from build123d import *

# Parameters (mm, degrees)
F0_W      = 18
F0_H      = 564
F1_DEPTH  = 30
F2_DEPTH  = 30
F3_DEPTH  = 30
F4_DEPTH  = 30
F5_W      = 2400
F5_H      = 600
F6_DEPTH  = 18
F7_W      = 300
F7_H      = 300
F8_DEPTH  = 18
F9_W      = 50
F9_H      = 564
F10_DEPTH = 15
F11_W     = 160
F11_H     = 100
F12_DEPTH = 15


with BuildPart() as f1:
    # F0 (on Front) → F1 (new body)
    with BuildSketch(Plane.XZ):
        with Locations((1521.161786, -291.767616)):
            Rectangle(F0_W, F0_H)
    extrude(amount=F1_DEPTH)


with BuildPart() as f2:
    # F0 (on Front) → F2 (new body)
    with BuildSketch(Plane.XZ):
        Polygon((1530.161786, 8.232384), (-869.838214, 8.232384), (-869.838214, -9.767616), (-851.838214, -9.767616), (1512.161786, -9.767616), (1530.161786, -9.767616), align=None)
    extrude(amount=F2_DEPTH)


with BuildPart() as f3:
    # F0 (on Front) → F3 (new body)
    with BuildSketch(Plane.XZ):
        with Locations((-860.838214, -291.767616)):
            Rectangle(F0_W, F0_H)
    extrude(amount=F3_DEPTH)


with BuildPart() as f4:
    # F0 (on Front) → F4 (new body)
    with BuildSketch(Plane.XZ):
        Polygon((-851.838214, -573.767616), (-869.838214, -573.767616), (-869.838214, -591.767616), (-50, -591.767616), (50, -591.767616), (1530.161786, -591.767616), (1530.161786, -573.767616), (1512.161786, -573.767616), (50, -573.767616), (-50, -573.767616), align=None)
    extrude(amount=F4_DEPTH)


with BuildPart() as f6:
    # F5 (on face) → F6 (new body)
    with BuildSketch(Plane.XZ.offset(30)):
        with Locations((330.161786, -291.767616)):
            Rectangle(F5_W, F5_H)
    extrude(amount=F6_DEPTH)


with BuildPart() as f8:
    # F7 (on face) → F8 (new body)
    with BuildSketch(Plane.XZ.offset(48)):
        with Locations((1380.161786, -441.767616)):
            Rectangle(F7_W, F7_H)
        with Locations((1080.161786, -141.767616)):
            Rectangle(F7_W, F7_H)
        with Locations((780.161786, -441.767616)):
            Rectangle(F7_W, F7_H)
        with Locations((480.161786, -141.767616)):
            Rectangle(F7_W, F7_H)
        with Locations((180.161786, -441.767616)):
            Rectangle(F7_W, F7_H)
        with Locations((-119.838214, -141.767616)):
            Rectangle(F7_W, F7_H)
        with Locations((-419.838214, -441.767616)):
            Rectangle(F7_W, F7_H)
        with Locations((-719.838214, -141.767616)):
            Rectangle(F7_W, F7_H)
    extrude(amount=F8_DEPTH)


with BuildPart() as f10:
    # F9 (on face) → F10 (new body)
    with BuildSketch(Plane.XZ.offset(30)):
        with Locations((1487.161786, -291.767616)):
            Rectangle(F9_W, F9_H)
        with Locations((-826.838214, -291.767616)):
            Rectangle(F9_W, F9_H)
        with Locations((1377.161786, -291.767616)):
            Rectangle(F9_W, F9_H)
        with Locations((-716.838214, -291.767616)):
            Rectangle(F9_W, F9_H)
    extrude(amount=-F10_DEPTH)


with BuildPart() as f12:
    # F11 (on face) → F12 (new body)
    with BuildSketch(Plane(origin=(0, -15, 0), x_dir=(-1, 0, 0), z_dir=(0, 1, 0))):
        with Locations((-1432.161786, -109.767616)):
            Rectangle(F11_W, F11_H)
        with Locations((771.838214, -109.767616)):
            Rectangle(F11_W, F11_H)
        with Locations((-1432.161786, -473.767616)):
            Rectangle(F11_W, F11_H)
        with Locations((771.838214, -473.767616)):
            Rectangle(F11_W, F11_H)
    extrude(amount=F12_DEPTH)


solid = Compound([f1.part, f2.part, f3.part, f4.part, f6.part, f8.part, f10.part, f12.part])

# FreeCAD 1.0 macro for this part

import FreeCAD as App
import Part
import Sketcher
from FreeCAD import Vector

doc = App.newDocument("Part")
body = doc.addObject("PartDesign::Body", "Body")

sketch1 = doc.addObject("Sketcher::SketchObject", "Sketch")
body.addObject(sketch1)
sketch1.AttachmentSupport = (doc.XZ_Plane, [""])
sketch1.MapMode = "FlatFace"
sketch1.addGeometry(Part.LineSegment(Vector(1512, -10, 0), Vector(1512, -574, 0)), False)
sketch1.addGeometry(Part.LineSegment(Vector(1512, -574, 0), Vector(1530, -574, 0)), False)
sketch1.addGeometry(Part.LineSegment(Vector(1530, -574, 0), Vector(1530, -10, 0)), False)
sketch1.addGeometry(Part.LineSegment(Vector(1530, -10, 0), Vector(1512, -10, 0)), False)
sketch1.addConstraint(Sketcher.Constraint("Coincident", 0, 2, 1, 1))
sketch1.addConstraint(Sketcher.Constraint("Coincident", 1, 2, 2, 1))
sketch1.addConstraint(Sketcher.Constraint("Coincident", 2, 2, 3, 1))
sketch1.addConstraint(Sketcher.Constraint("Coincident", 3, 2, 0, 1))
sketch1.addConstraint(Sketcher.Constraint("Vertical", 0))
sketch1.addConstraint(Sketcher.Constraint("Horizontal", 1))
sketch1.addConstraint(Sketcher.Constraint("Vertical", 2))
sketch1.addConstraint(Sketcher.Constraint("Horizontal", 3))
sketch1.addConstraint(Sketcher.Constraint("DistanceX", 1, 1, 1, 2, 18.0))
sketch1.addConstraint(Sketcher.Constraint("DistanceY", 0, 2, 0, 1, 564.0))
sketch1.addConstraint(Sketcher.Constraint("DistanceX", -1, 1, 0, 2, 1512.161786))
sketch1.addConstraint(Sketcher.Constraint("DistanceY", 0, 2, -1, 1, 573.767616))
pad1 = doc.addObject("PartDesign::Pad", "Pad")
body.addObject(pad1)
pad1.Profile = sketch1
pad1.Length = 30
body2 = doc.addObject("PartDesign::Body", "Body001")

sketch2 = doc.addObject("Sketcher::SketchObject", "Sketch001")
body2.addObject(sketch2)
sketch2.AttachmentSupport = (doc.getObject("XZ_Plane001"), [""])
sketch2.MapMode = "FlatFace"
sketch2.addGeometry(Part.LineSegment(Vector(1530, 8, 0), Vector(-870, 8, 0)), False)
sketch2.addGeometry(Part.LineSegment(Vector(-870, 8, 0), Vector(-870, -10, 0)), False)
sketch2.addGeometry(Part.LineSegment(Vector(-870, -10, 0), Vector(1530, -10, 0)), False)
sketch2.addGeometry(Part.LineSegment(Vector(1530, -10, 0), Vector(1530, 8, 0)), False)
sketch2.addConstraint(Sketcher.Constraint("Coincident", 0, 2, 1, 1))
sketch2.addConstraint(Sketcher.Constraint("Coincident", 1, 2, 2, 1))
sketch2.addConstraint(Sketcher.Constraint("Coincident", 2, 2, 3, 1))
sketch2.addConstraint(Sketcher.Constraint("Coincident", 3, 2, 0, 1))
sketch2.addConstraint(Sketcher.Constraint("Horizontal", 0))
sketch2.addConstraint(Sketcher.Constraint("Vertical", 1))
sketch2.addConstraint(Sketcher.Constraint("Horizontal", 2))
sketch2.addConstraint(Sketcher.Constraint("Vertical", 3))
sketch2.addConstraint(Sketcher.Constraint("DistanceX", 0, 2, 0, 1, 2400.0))
sketch2.addConstraint(Sketcher.Constraint("DistanceY", 1, 2, 1, 1, 18.0))
sketch2.addConstraint(Sketcher.Constraint("DistanceX", 0, 2, -1, 1, 869.838214))
sketch2.addConstraint(Sketcher.Constraint("DistanceY", -1, 1, 0, 2, 8.232384))
pad2 = doc.addObject("PartDesign::Pad", "Pad001")
body2.addObject(pad2)
pad2.Profile = sketch2
pad2.Length = 30
body3 = doc.addObject("PartDesign::Body", "Body002")

sketch3 = doc.addObject("Sketcher::SketchObject", "Sketch002")
body3.addObject(sketch3)
sketch3.AttachmentSupport = (doc.getObject("XZ_Plane002"), [""])
sketch3.MapMode = "FlatFace"
sketch3.addGeometry(Part.LineSegment(Vector(-870, -10, 0), Vector(-870, -574, 0)), False)
sketch3.addGeometry(Part.LineSegment(Vector(-870, -574, 0), Vector(-852, -574, 0)), False)
sketch3.addGeometry(Part.LineSegment(Vector(-852, -574, 0), Vector(-852, -10, 0)), False)
sketch3.addGeometry(Part.LineSegment(Vector(-852, -10, 0), Vector(-870, -10, 0)), False)
sketch3.addConstraint(Sketcher.Constraint("Coincident", 0, 2, 1, 1))
sketch3.addConstraint(Sketcher.Constraint("Coincident", 1, 2, 2, 1))
sketch3.addConstraint(Sketcher.Constraint("Coincident", 2, 2, 3, 1))
sketch3.addConstraint(Sketcher.Constraint("Coincident", 3, 2, 0, 1))
sketch3.addConstraint(Sketcher.Constraint("Vertical", 0))
sketch3.addConstraint(Sketcher.Constraint("Horizontal", 1))
sketch3.addConstraint(Sketcher.Constraint("Vertical", 2))
sketch3.addConstraint(Sketcher.Constraint("Horizontal", 3))
sketch3.addConstraint(Sketcher.Constraint("DistanceX", 1, 1, 1, 2, 18.0))
sketch3.addConstraint(Sketcher.Constraint("DistanceY", 0, 2, 0, 1, 564.0))
sketch3.addConstraint(Sketcher.Constraint("DistanceX", 0, 2, -1, 1, 869.838214))
sketch3.addConstraint(Sketcher.Constraint("DistanceY", 0, 2, -1, 1, 573.767616))
pad3 = doc.addObject("PartDesign::Pad", "Pad002")
body3.addObject(pad3)
pad3.Profile = sketch3
pad3.Length = 30
body4 = doc.addObject("PartDesign::Body", "Body003")

sketch4 = doc.addObject("Sketcher::SketchObject", "Sketch003")
body4.addObject(sketch4)
sketch4.AttachmentSupport = (doc.getObject("XZ_Plane003"), [""])
sketch4.MapMode = "FlatFace"
sketch4.addGeometry(Part.LineSegment(Vector(-870, -574, 0), Vector(-870, -592, 0)), False)
sketch4.addGeometry(Part.LineSegment(Vector(-870, -592, 0), Vector(1530, -592, 0)), False)
sketch4.addGeometry(Part.LineSegment(Vector(1530, -592, 0), Vector(1530, -574, 0)), False)
sketch4.addGeometry(Part.LineSegment(Vector(1530, -574, 0), Vector(-870, -574, 0)), False)
sketch4.addConstraint(Sketcher.Constraint("Coincident", 0, 2, 1, 1))
sketch4.addConstraint(Sketcher.Constraint("Coincident", 1, 2, 2, 1))
sketch4.addConstraint(Sketcher.Constraint("Coincident", 2, 2, 3, 1))
sketch4.addConstraint(Sketcher.Constraint("Coincident", 3, 2, 0, 1))
sketch4.addConstraint(Sketcher.Constraint("Vertical", 0))
sketch4.addConstraint(Sketcher.Constraint("Horizontal", 1))
sketch4.addConstraint(Sketcher.Constraint("Vertical", 2))
sketch4.addConstraint(Sketcher.Constraint("Horizontal", 3))
sketch4.addConstraint(Sketcher.Constraint("DistanceX", 1, 1, 1, 2, 2400.0))
sketch4.addConstraint(Sketcher.Constraint("DistanceY", 0, 2, 0, 1, 18.0))
sketch4.addConstraint(Sketcher.Constraint("DistanceX", 0, 2, -1, 1, 869.838214))
sketch4.addConstraint(Sketcher.Constraint("DistanceY", 0, 2, -1, 1, 591.767616))
pad4 = doc.addObject("PartDesign::Pad", "Pad003")
body4.addObject(pad4)
pad4.Profile = sketch4
pad4.Length = 30
body5 = doc.addObject("PartDesign::Body", "Body004")

sketch5 = doc.addObject("Sketcher::SketchObject", "Sketch004")
body5.addObject(sketch5)
sketch5.AttachmentSupport = (doc.getObject("XZ_Plane004"), [""])
sketch5.MapMode = "FlatFace"
sketch5.AttachmentOffset = App.Placement(Vector(0, 0, 30), App.Rotation())
sketch5.addGeometry(Part.LineSegment(Vector(-870, 8, 0), Vector(-870, -592, 0)), False)
sketch5.addGeometry(Part.LineSegment(Vector(-870, -592, 0), Vector(1530, -592, 0)), False)
sketch5.addGeometry(Part.LineSegment(Vector(1530, -592, 0), Vector(1530, 8, 0)), False)
sketch5.addGeometry(Part.LineSegment(Vector(1530, 8, 0), Vector(-870, 8, 0)), False)
sketch5.addConstraint(Sketcher.Constraint("Coincident", 0, 2, 1, 1))
sketch5.addConstraint(Sketcher.Constraint("Coincident", 1, 2, 2, 1))
sketch5.addConstraint(Sketcher.Constraint("Coincident", 2, 2, 3, 1))
sketch5.addConstraint(Sketcher.Constraint("Coincident", 3, 2, 0, 1))
sketch5.addConstraint(Sketcher.Constraint("Vertical", 0))
sketch5.addConstraint(Sketcher.Constraint("Horizontal", 1))
sketch5.addConstraint(Sketcher.Constraint("Vertical", 2))
sketch5.addConstraint(Sketcher.Constraint("Horizontal", 3))
sketch5.addConstraint(Sketcher.Constraint("DistanceX", 1, 1, 1, 2, 2400.0))
sketch5.addConstraint(Sketcher.Constraint("DistanceY", 0, 2, 0, 1, 600.0))
sketch5.addConstraint(Sketcher.Constraint("DistanceX", 0, 2, -1, 1, 869.838214))
sketch5.addConstraint(Sketcher.Constraint("DistanceY", 0, 2, -1, 1, 591.767616))
pad5 = doc.addObject("PartDesign::Pad", "Pad004")
body5.addObject(pad5)
pad5.Profile = sketch5
pad5.Length = 18
body6 = doc.addObject("PartDesign::Body", "Body005")
body6.AllowCompound = True

sketch6 = doc.addObject("Sketcher::SketchObject", "Sketch005")
body6.addObject(sketch6)
sketch6.AttachmentSupport = (doc.getObject("XZ_Plane005"), [""])
sketch6.MapMode = "FlatFace"
sketch6.AttachmentOffset = App.Placement(Vector(0, 0, 48), App.Rotation())
sketch6.addGeometry(Part.LineSegment(Vector(1230, -292, 0), Vector(1230, -592, 0)), False)
sketch6.addGeometry(Part.LineSegment(Vector(1230, -592, 0), Vector(1530, -592, 0)), False)
sketch6.addGeometry(Part.LineSegment(Vector(1530, -592, 0), Vector(1530, -292, 0)), False)
sketch6.addGeometry(Part.LineSegment(Vector(1530, -292, 0), Vector(1230, -292, 0)), False)
sketch6.addGeometry(Part.LineSegment(Vector(930, 8, 0), Vector(930, -292, 0)), False)
sketch6.addGeometry(Part.LineSegment(Vector(930, -292, 0), Vector(1230, -292, 0)), False)
sketch6.addGeometry(Part.LineSegment(Vector(1230, -292, 0), Vector(1230, 8, 0)), False)
sketch6.addGeometry(Part.LineSegment(Vector(1230, 8, 0), Vector(930, 8, 0)), False)
sketch6.addGeometry(Part.LineSegment(Vector(630, -292, 0), Vector(630, -592, 0)), False)
sketch6.addGeometry(Part.LineSegment(Vector(630, -592, 0), Vector(930, -592, 0)), False)
sketch6.addGeometry(Part.LineSegment(Vector(930, -592, 0), Vector(930, -292, 0)), False)
sketch6.addGeometry(Part.LineSegment(Vector(930, -292, 0), Vector(630, -292, 0)), False)
sketch6.addGeometry(Part.LineSegment(Vector(330, 8, 0), Vector(330, -292, 0)), False)
sketch6.addGeometry(Part.LineSegment(Vector(330, -292, 0), Vector(630, -292, 0)), False)
sketch6.addGeometry(Part.LineSegment(Vector(630, -292, 0), Vector(630, 8, 0)), False)
sketch6.addGeometry(Part.LineSegment(Vector(630, 8, 0), Vector(330, 8, 0)), False)
sketch6.addGeometry(Part.LineSegment(Vector(30, -292, 0), Vector(30, -592, 0)), False)
sketch6.addGeometry(Part.LineSegment(Vector(30, -592, 0), Vector(330, -592, 0)), False)
sketch6.addGeometry(Part.LineSegment(Vector(330, -592, 0), Vector(330, -292, 0)), False)
sketch6.addGeometry(Part.LineSegment(Vector(330, -292, 0), Vector(30, -292, 0)), False)
sketch6.addGeometry(Part.LineSegment(Vector(-270, 8, 0), Vector(-270, -292, 0)), False)
sketch6.addGeometry(Part.LineSegment(Vector(-270, -292, 0), Vector(30, -292, 0)), False)
sketch6.addGeometry(Part.LineSegment(Vector(30, -292, 0), Vector(30, 8, 0)), False)
sketch6.addGeometry(Part.LineSegment(Vector(30, 8, 0), Vector(-270, 8, 0)), False)
sketch6.addGeometry(Part.LineSegment(Vector(-570, -292, 0), Vector(-570, -592, 0)), False)
sketch6.addGeometry(Part.LineSegment(Vector(-570, -592, 0), Vector(-270, -592, 0)), False)
sketch6.addGeometry(Part.LineSegment(Vector(-270, -592, 0), Vector(-270, -292, 0)), False)
sketch6.addGeometry(Part.LineSegment(Vector(-270, -292, 0), Vector(-570, -292, 0)), False)
sketch6.addGeometry(Part.LineSegment(Vector(-870, 8, 0), Vector(-870, -292, 0)), False)
sketch6.addGeometry(Part.LineSegment(Vector(-870, -292, 0), Vector(-570, -292, 0)), False)
sketch6.addGeometry(Part.LineSegment(Vector(-570, -292, 0), Vector(-570, 8, 0)), False)
sketch6.addGeometry(Part.LineSegment(Vector(-570, 8, 0), Vector(-870, 8, 0)), False)
sketch6.addConstraint(Sketcher.Constraint("Coincident", 0, 2, 1, 1))
sketch6.addConstraint(Sketcher.Constraint("Coincident", 1, 2, 2, 1))
sketch6.addConstraint(Sketcher.Constraint("Coincident", 2, 2, 3, 1))
sketch6.addConstraint(Sketcher.Constraint("Coincident", 3, 2, 0, 1))
sketch6.addConstraint(Sketcher.Constraint("Coincident", 4, 2, 5, 1))
sketch6.addConstraint(Sketcher.Constraint("Coincident", 5, 2, 6, 1))
sketch6.addConstraint(Sketcher.Constraint("Coincident", 6, 2, 7, 1))
sketch6.addConstraint(Sketcher.Constraint("Coincident", 7, 2, 4, 1))
sketch6.addConstraint(Sketcher.Constraint("Coincident", 8, 2, 9, 1))
sketch6.addConstraint(Sketcher.Constraint("Coincident", 9, 2, 10, 1))
sketch6.addConstraint(Sketcher.Constraint("Coincident", 10, 2, 11, 1))
sketch6.addConstraint(Sketcher.Constraint("Coincident", 11, 2, 8, 1))
sketch6.addConstraint(Sketcher.Constraint("Coincident", 12, 2, 13, 1))
sketch6.addConstraint(Sketcher.Constraint("Coincident", 13, 2, 14, 1))
sketch6.addConstraint(Sketcher.Constraint("Coincident", 14, 2, 15, 1))
sketch6.addConstraint(Sketcher.Constraint("Coincident", 15, 2, 12, 1))
sketch6.addConstraint(Sketcher.Constraint("Coincident", 16, 2, 17, 1))
sketch6.addConstraint(Sketcher.Constraint("Coincident", 17, 2, 18, 1))
sketch6.addConstraint(Sketcher.Constraint("Coincident", 18, 2, 19, 1))
sketch6.addConstraint(Sketcher.Constraint("Coincident", 19, 2, 16, 1))
sketch6.addConstraint(Sketcher.Constraint("Coincident", 20, 2, 21, 1))
sketch6.addConstraint(Sketcher.Constraint("Coincident", 21, 2, 22, 1))
sketch6.addConstraint(Sketcher.Constraint("Coincident", 22, 2, 23, 1))
sketch6.addConstraint(Sketcher.Constraint("Coincident", 23, 2, 20, 1))
sketch6.addConstraint(Sketcher.Constraint("Coincident", 24, 2, 25, 1))
sketch6.addConstraint(Sketcher.Constraint("Coincident", 25, 2, 26, 1))
sketch6.addConstraint(Sketcher.Constraint("Coincident", 26, 2, 27, 1))
sketch6.addConstraint(Sketcher.Constraint("Coincident", 27, 2, 24, 1))
sketch6.addConstraint(Sketcher.Constraint("Coincident", 28, 2, 29, 1))
sketch6.addConstraint(Sketcher.Constraint("Coincident", 29, 2, 30, 1))
sketch6.addConstraint(Sketcher.Constraint("Coincident", 30, 2, 31, 1))
sketch6.addConstraint(Sketcher.Constraint("Coincident", 31, 2, 28, 1))
sketch6.addConstraint(Sketcher.Constraint("Vertical", 0))
sketch6.addConstraint(Sketcher.Constraint("Horizontal", 1))
sketch6.addConstraint(Sketcher.Constraint("Vertical", 2))
sketch6.addConstraint(Sketcher.Constraint("Horizontal", 3))
sketch6.addConstraint(Sketcher.Constraint("Vertical", 4))
sketch6.addConstraint(Sketcher.Constraint("Horizontal", 5))
sketch6.addConstraint(Sketcher.Constraint("Vertical", 6))
sketch6.addConstraint(Sketcher.Constraint("Horizontal", 7))
sketch6.addConstraint(Sketcher.Constraint("Vertical", 8))
sketch6.addConstraint(Sketcher.Constraint("Horizontal", 9))
sketch6.addConstraint(Sketcher.Constraint("Vertical", 10))
sketch6.addConstraint(Sketcher.Constraint("Horizontal", 11))
sketch6.addConstraint(Sketcher.Constraint("Vertical", 12))
sketch6.addConstraint(Sketcher.Constraint("Horizontal", 13))
sketch6.addConstraint(Sketcher.Constraint("Vertical", 14))
sketch6.addConstraint(Sketcher.Constraint("Horizontal", 15))
sketch6.addConstraint(Sketcher.Constraint("Vertical", 16))
sketch6.addConstraint(Sketcher.Constraint("Horizontal", 17))
sketch6.addConstraint(Sketcher.Constraint("Vertical", 18))
sketch6.addConstraint(Sketcher.Constraint("Horizontal", 19))
sketch6.addConstraint(Sketcher.Constraint("Vertical", 20))
sketch6.addConstraint(Sketcher.Constraint("Horizontal", 21))
sketch6.addConstraint(Sketcher.Constraint("Vertical", 22))
sketch6.addConstraint(Sketcher.Constraint("Horizontal", 23))
sketch6.addConstraint(Sketcher.Constraint("Vertical", 24))
sketch6.addConstraint(Sketcher.Constraint("Horizontal", 25))
sketch6.addConstraint(Sketcher.Constraint("Vertical", 26))
sketch6.addConstraint(Sketcher.Constraint("Horizontal", 27))
sketch6.addConstraint(Sketcher.Constraint("Vertical", 28))
sketch6.addConstraint(Sketcher.Constraint("Horizontal", 29))
sketch6.addConstraint(Sketcher.Constraint("Vertical", 30))
sketch6.addConstraint(Sketcher.Constraint("Horizontal", 31))
sketch6.addConstraint(Sketcher.Constraint("Coincident", 5, 2, 3, 2))
sketch6.addConstraint(Sketcher.Constraint("Coincident", 10, 2, 4, 2))
sketch6.addConstraint(Sketcher.Constraint("Coincident", 13, 2, 11, 2))
sketch6.addConstraint(Sketcher.Constraint("Coincident", 18, 2, 12, 2))
sketch6.addConstraint(Sketcher.Constraint("Coincident", 21, 2, 19, 2))
sketch6.addConstraint(Sketcher.Constraint("Coincident", 26, 2, 20, 2))
sketch6.addConstraint(Sketcher.Constraint("Coincident", 29, 2, 27, 2))
sketch6.addConstraint(Sketcher.Constraint("Horizontal", 1, 2, 8, 2))
sketch6.addConstraint(Sketcher.Constraint("Horizontal", 7, 2, 14, 2))
sketch6.addConstraint(Sketcher.Constraint("Horizontal", 9, 2, 16, 2))
sketch6.addConstraint(Sketcher.Constraint("Horizontal", 15, 2, 22, 2))
sketch6.addConstraint(Sketcher.Constraint("Horizontal", 17, 2, 24, 2))
sketch6.addConstraint(Sketcher.Constraint("Horizontal", 23, 2, 30, 2))
sketch6.addConstraint(Sketcher.Constraint("Equal", 3, 5))
sketch6.addConstraint(Sketcher.Constraint("Equal", 7, 9))
sketch6.addConstraint(Sketcher.Constraint("Equal", 11, 13))
sketch6.addConstraint(Sketcher.Constraint("Equal", 15, 17))
sketch6.addConstraint(Sketcher.Constraint("Equal", 19, 21))
sketch6.addConstraint(Sketcher.Constraint("Equal", 23, 25))
sketch6.addConstraint(Sketcher.Constraint("Equal", 27, 29))
sketch6.addConstraint(Sketcher.Constraint("Equal", 31, 0))
sketch6.addConstraint(Sketcher.Constraint("Equal", 2, 4))
sketch6.addConstraint(Sketcher.Constraint("DistanceX", 1, 1, 1, 2, 300.0))
sketch6.addConstraint(Sketcher.Constraint("DistanceX", -1, 1, 0, 2, 1230.161786))
sketch6.addConstraint(Sketcher.Constraint("DistanceY", 0, 2, -1, 1, 591.767616))
pad6 = doc.addObject("PartDesign::Pad", "Pad005")
body6.addObject(pad6)
pad6.Profile = sketch6
pad6.Length = 18
body7 = doc.addObject("PartDesign::Body", "Body006")
body7.AllowCompound = True

sketch7 = doc.addObject("Sketcher::SketchObject", "Sketch006")
body7.addObject(sketch7)
sketch7.AttachmentSupport = (doc.getObject("XZ_Plane006"), [""])
sketch7.MapMode = "FlatFace"
sketch7.AttachmentOffset = App.Placement(Vector(0, 0, 30), App.Rotation())
sketch7.addGeometry(Part.LineSegment(Vector(1462, -10, 0), Vector(1462, -574, 0)), False)
sketch7.addGeometry(Part.LineSegment(Vector(1462, -574, 0), Vector(1512, -574, 0)), False)
sketch7.addGeometry(Part.LineSegment(Vector(1512, -574, 0), Vector(1512, -10, 0)), False)
sketch7.addGeometry(Part.LineSegment(Vector(1512, -10, 0), Vector(1462, -10, 0)), False)
sketch7.addGeometry(Part.LineSegment(Vector(-852, -10, 0), Vector(-852, -574, 0)), False)
sketch7.addGeometry(Part.LineSegment(Vector(-852, -574, 0), Vector(-802, -574, 0)), False)
sketch7.addGeometry(Part.LineSegment(Vector(-802, -574, 0), Vector(-802, -10, 0)), False)
sketch7.addGeometry(Part.LineSegment(Vector(-802, -10, 0), Vector(-852, -10, 0)), False)
sketch7.addGeometry(Part.LineSegment(Vector(1352, -10, 0), Vector(1352, -574, 0)), False)
sketch7.addGeometry(Part.LineSegment(Vector(1352, -574, 0), Vector(1402, -574, 0)), False)
sketch7.addGeometry(Part.LineSegment(Vector(1402, -574, 0), Vector(1402, -10, 0)), False)
sketch7.addGeometry(Part.LineSegment(Vector(1402, -10, 0), Vector(1352, -10, 0)), False)
sketch7.addGeometry(Part.LineSegment(Vector(-742, -10, 0), Vector(-742, -574, 0)), False)
sketch7.addGeometry(Part.LineSegment(Vector(-742, -574, 0), Vector(-692, -574, 0)), False)
sketch7.addGeometry(Part.LineSegment(Vector(-692, -574, 0), Vector(-692, -10, 0)), False)
sketch7.addGeometry(Part.LineSegment(Vector(-692, -10, 0), Vector(-742, -10, 0)), False)
sketch7.addConstraint(Sketcher.Constraint("Coincident", 0, 2, 1, 1))
sketch7.addConstraint(Sketcher.Constraint("Coincident", 1, 2, 2, 1))
sketch7.addConstraint(Sketcher.Constraint("Coincident", 2, 2, 3, 1))
sketch7.addConstraint(Sketcher.Constraint("Coincident", 3, 2, 0, 1))
sketch7.addConstraint(Sketcher.Constraint("Coincident", 4, 2, 5, 1))
sketch7.addConstraint(Sketcher.Constraint("Coincident", 5, 2, 6, 1))
sketch7.addConstraint(Sketcher.Constraint("Coincident", 6, 2, 7, 1))
sketch7.addConstraint(Sketcher.Constraint("Coincident", 7, 2, 4, 1))
sketch7.addConstraint(Sketcher.Constraint("Coincident", 8, 2, 9, 1))
sketch7.addConstraint(Sketcher.Constraint("Coincident", 9, 2, 10, 1))
sketch7.addConstraint(Sketcher.Constraint("Coincident", 10, 2, 11, 1))
sketch7.addConstraint(Sketcher.Constraint("Coincident", 11, 2, 8, 1))
sketch7.addConstraint(Sketcher.Constraint("Coincident", 12, 2, 13, 1))
sketch7.addConstraint(Sketcher.Constraint("Coincident", 13, 2, 14, 1))
sketch7.addConstraint(Sketcher.Constraint("Coincident", 14, 2, 15, 1))
sketch7.addConstraint(Sketcher.Constraint("Coincident", 15, 2, 12, 1))
sketch7.addConstraint(Sketcher.Constraint("Vertical", 0))
sketch7.addConstraint(Sketcher.Constraint("Horizontal", 1))
sketch7.addConstraint(Sketcher.Constraint("Vertical", 2))
sketch7.addConstraint(Sketcher.Constraint("Horizontal", 3))
sketch7.addConstraint(Sketcher.Constraint("Vertical", 4))
sketch7.addConstraint(Sketcher.Constraint("Horizontal", 5))
sketch7.addConstraint(Sketcher.Constraint("Vertical", 6))
sketch7.addConstraint(Sketcher.Constraint("Horizontal", 7))
sketch7.addConstraint(Sketcher.Constraint("Vertical", 8))
sketch7.addConstraint(Sketcher.Constraint("Horizontal", 9))
sketch7.addConstraint(Sketcher.Constraint("Vertical", 10))
sketch7.addConstraint(Sketcher.Constraint("Horizontal", 11))
sketch7.addConstraint(Sketcher.Constraint("Vertical", 12))
sketch7.addConstraint(Sketcher.Constraint("Horizontal", 13))
sketch7.addConstraint(Sketcher.Constraint("Vertical", 14))
sketch7.addConstraint(Sketcher.Constraint("Horizontal", 15))
sketch7.addConstraint(Sketcher.Constraint("Horizontal", 1, 2, 4, 2))
sketch7.addConstraint(Sketcher.Constraint("Horizontal", 3, 2, 6, 2))
sketch7.addConstraint(Sketcher.Constraint("Horizontal", 5, 2, 8, 2))
sketch7.addConstraint(Sketcher.Constraint("Horizontal", 7, 2, 10, 2))
sketch7.addConstraint(Sketcher.Constraint("Horizontal", 9, 2, 12, 2))
sketch7.addConstraint(Sketcher.Constraint("Horizontal", 11, 2, 14, 2))
sketch7.addConstraint(Sketcher.Constraint("Equal", 3, 5))
sketch7.addConstraint(Sketcher.Constraint("Equal", 7, 9))
sketch7.addConstraint(Sketcher.Constraint("Equal", 11, 13))
sketch7.addConstraint(Sketcher.Constraint("DistanceX", 1, 1, 1, 2, 50.0))
sketch7.addConstraint(Sketcher.Constraint("DistanceY", 0, 2, 0, 1, 564.0))
sketch7.addConstraint(Sketcher.Constraint("DistanceX", 4, 2, 0, 2, 2314.0))
sketch7.addConstraint(Sketcher.Constraint("DistanceX", 8, 2, 0, 2, 110.0))
sketch7.addConstraint(Sketcher.Constraint("DistanceX", 5, 2, 12, 2, 60.0))
sketch7.addConstraint(Sketcher.Constraint("DistanceX", -1, 1, 0, 2, 1462.161786))
sketch7.addConstraint(Sketcher.Constraint("DistanceY", 0, 2, -1, 1, 573.767616))
pad7 = doc.addObject("PartDesign::Pad", "Pad006")
body7.addObject(pad7)
pad7.Profile = sketch7
pad7.Length = 15
pad7.Reversed = True
body8 = doc.addObject("PartDesign::Body", "Body007")
body8.AllowCompound = True

sketch8 = doc.addObject("Sketcher::SketchObject", "Sketch007")
body8.addObject(sketch8)
sketch8.AttachmentSupport = (doc.getObject("XZ_Plane007"), [""])
sketch8.MapMode = "FlatFace"
sketch8.AttachmentOffset = App.Placement(Vector(0, 0, 15), App.Rotation())
sketch8.addGeometry(Part.LineSegment(Vector(1512, -60, 0), Vector(1512, -160, 0)), False)
sketch8.addGeometry(Part.LineSegment(Vector(1512, -160, 0), Vector(1352, -160, 0)), False)
sketch8.addGeometry(Part.LineSegment(Vector(1352, -160, 0), Vector(1352, -60, 0)), False)
sketch8.addGeometry(Part.LineSegment(Vector(1352, -60, 0), Vector(1512, -60, 0)), False)
sketch8.addGeometry(Part.LineSegment(Vector(-692, -60, 0), Vector(-692, -160, 0)), False)
sketch8.addGeometry(Part.LineSegment(Vector(-692, -160, 0), Vector(-852, -160, 0)), False)
sketch8.addGeometry(Part.LineSegment(Vector(-852, -160, 0), Vector(-852, -60, 0)), False)
sketch8.addGeometry(Part.LineSegment(Vector(-852, -60, 0), Vector(-692, -60, 0)), False)
sketch8.addGeometry(Part.LineSegment(Vector(1512, -424, 0), Vector(1512, -524, 0)), False)
sketch8.addGeometry(Part.LineSegment(Vector(1512, -524, 0), Vector(1352, -524, 0)), False)
sketch8.addGeometry(Part.LineSegment(Vector(1352, -524, 0), Vector(1352, -424, 0)), False)
sketch8.addGeometry(Part.LineSegment(Vector(1352, -424, 0), Vector(1512, -424, 0)), False)
sketch8.addGeometry(Part.LineSegment(Vector(-692, -424, 0), Vector(-692, -524, 0)), False)
sketch8.addGeometry(Part.LineSegment(Vector(-692, -524, 0), Vector(-852, -524, 0)), False)
sketch8.addGeometry(Part.LineSegment(Vector(-852, -524, 0), Vector(-852, -424, 0)), False)
sketch8.addGeometry(Part.LineSegment(Vector(-852, -424, 0), Vector(-692, -424, 0)), False)
sketch8.addConstraint(Sketcher.Constraint("Coincident", 0, 2, 1, 1))
sketch8.addConstraint(Sketcher.Constraint("Coincident", 1, 2, 2, 1))
sketch8.addConstraint(Sketcher.Constraint("Coincident", 2, 2, 3, 1))
sketch8.addConstraint(Sketcher.Constraint("Coincident", 3, 2, 0, 1))
sketch8.addConstraint(Sketcher.Constraint("Coincident", 4, 2, 5, 1))
sketch8.addConstraint(Sketcher.Constraint("Coincident", 5, 2, 6, 1))
sketch8.addConstraint(Sketcher.Constraint("Coincident", 6, 2, 7, 1))
sketch8.addConstraint(Sketcher.Constraint("Coincident", 7, 2, 4, 1))
sketch8.addConstraint(Sketcher.Constraint("Coincident", 8, 2, 9, 1))
sketch8.addConstraint(Sketcher.Constraint("Coincident", 9, 2, 10, 1))
sketch8.addConstraint(Sketcher.Constraint("Coincident", 10, 2, 11, 1))
sketch8.addConstraint(Sketcher.Constraint("Coincident", 11, 2, 8, 1))
sketch8.addConstraint(Sketcher.Constraint("Coincident", 12, 2, 13, 1))
sketch8.addConstraint(Sketcher.Constraint("Coincident", 13, 2, 14, 1))
sketch8.addConstraint(Sketcher.Constraint("Coincident", 14, 2, 15, 1))
sketch8.addConstraint(Sketcher.Constraint("Coincident", 15, 2, 12, 1))
sketch8.addConstraint(Sketcher.Constraint("Vertical", 0))
sketch8.addConstraint(Sketcher.Constraint("Horizontal", 1))
sketch8.addConstraint(Sketcher.Constraint("Vertical", 2))
sketch8.addConstraint(Sketcher.Constraint("Horizontal", 3))
sketch8.addConstraint(Sketcher.Constraint("Vertical", 4))
sketch8.addConstraint(Sketcher.Constraint("Horizontal", 5))
sketch8.addConstraint(Sketcher.Constraint("Vertical", 6))
sketch8.addConstraint(Sketcher.Constraint("Horizontal", 7))
sketch8.addConstraint(Sketcher.Constraint("Vertical", 8))
sketch8.addConstraint(Sketcher.Constraint("Horizontal", 9))
sketch8.addConstraint(Sketcher.Constraint("Vertical", 10))
sketch8.addConstraint(Sketcher.Constraint("Horizontal", 11))
sketch8.addConstraint(Sketcher.Constraint("Vertical", 12))
sketch8.addConstraint(Sketcher.Constraint("Horizontal", 13))
sketch8.addConstraint(Sketcher.Constraint("Vertical", 14))
sketch8.addConstraint(Sketcher.Constraint("Horizontal", 15))
sketch8.addConstraint(Sketcher.Constraint("Horizontal", 1, 2, 4, 2))
sketch8.addConstraint(Sketcher.Constraint("Horizontal", 3, 2, 6, 2))
sketch8.addConstraint(Sketcher.Constraint("Horizontal", 9, 2, 12, 2))
sketch8.addConstraint(Sketcher.Constraint("Horizontal", 11, 2, 14, 2))
sketch8.addConstraint(Sketcher.Constraint("Vertical", 3, 2, 8, 2))
sketch8.addConstraint(Sketcher.Constraint("Vertical", 2, 2, 9, 2))
sketch8.addConstraint(Sketcher.Constraint("Vertical", 7, 2, 12, 2))
sketch8.addConstraint(Sketcher.Constraint("Vertical", 6, 2, 13, 2))
sketch8.addConstraint(Sketcher.Constraint("Equal", 3, 5))
sketch8.addConstraint(Sketcher.Constraint("Equal", 6, 8))
sketch8.addConstraint(Sketcher.Constraint("DistanceX", 1, 2, 1, 1, 160.0))
sketch8.addConstraint(Sketcher.Constraint("DistanceY", 0, 2, 0, 1, 100.0))
sketch8.addConstraint(Sketcher.Constraint("DistanceX", 4, 2, 1, 2, 2044.0))
sketch8.addConstraint(Sketcher.Constraint("DistanceY", 8, 2, 0, 2, 364.0))
sketch8.addConstraint(Sketcher.Constraint("DistanceX", -1, 1, 0, 2, 1512.161786))
sketch8.addConstraint(Sketcher.Constraint("DistanceY", 0, 2, -1, 1, 159.767616))
pad8 = doc.addObject("PartDesign::Pad", "Pad007")
body8.addObject(pad8)
pad8.Profile = sketch8
pad8.Length = 15
pad8.Reversed = True

doc.recompute()
